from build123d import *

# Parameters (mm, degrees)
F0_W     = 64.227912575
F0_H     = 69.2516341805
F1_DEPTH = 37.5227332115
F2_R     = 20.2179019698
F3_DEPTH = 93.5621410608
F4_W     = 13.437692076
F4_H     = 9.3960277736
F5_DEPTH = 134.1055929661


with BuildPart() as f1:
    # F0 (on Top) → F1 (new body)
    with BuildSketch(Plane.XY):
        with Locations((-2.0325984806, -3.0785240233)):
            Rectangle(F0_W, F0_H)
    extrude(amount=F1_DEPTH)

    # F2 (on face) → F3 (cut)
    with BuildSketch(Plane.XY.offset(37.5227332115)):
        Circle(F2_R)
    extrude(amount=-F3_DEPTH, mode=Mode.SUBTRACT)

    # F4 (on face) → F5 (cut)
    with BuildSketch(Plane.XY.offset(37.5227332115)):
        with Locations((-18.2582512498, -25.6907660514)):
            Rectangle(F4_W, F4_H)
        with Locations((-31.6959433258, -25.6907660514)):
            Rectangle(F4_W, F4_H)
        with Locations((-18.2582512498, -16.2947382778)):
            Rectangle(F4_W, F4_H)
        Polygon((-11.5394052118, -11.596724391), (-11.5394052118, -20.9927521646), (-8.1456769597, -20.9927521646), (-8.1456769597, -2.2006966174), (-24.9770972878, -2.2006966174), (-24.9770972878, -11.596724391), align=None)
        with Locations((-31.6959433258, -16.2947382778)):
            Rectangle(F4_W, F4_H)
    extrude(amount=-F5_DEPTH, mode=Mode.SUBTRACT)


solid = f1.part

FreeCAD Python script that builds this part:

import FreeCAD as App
import Part
import Sketcher
from FreeCAD import Vector
Q = App.Units.Quantity


def add_polygon(sketch, points):
    """Adds a closed chain of lines whose ends are joined by coincident constraints."""
    first, n = sketch.GeometryCount, len(points)
    for a, b in zip(points, points[1:] + points[:1]):
        sketch.addGeometry(Part.LineSegment(App.Vector(*a, 0), App.Vector(*b, 0)), False)
    for i in range(n):
        sketch.addConstraint(Sketcher.Constraint("Coincident", first + i, 2, first + (i + 1) % n, 1))

doc = App.newDocument("Part")
body = doc.addObject("PartDesign::Body", "Body")

# Sketch on XY plane
sketch1 = body.newObject("Sketcher::SketchObject", "Sketch")
sketch1.AttachmentSupport = (doc.getObject("XY_Plane"), [""])
sketch1.MapMode = "FlatFace"
add_polygon(sketch1, [(-34.146555, 31.547293), (-34.146555, -37.704341), (30.081358, -37.704341), (30.081358, 31.547293)])  # lines 0-3
sketch1.addConstraint([
    Sketcher.Constraint("Vertical", 0),
    Sketcher.Constraint("Horizontal", 1),
    Sketcher.Constraint("Vertical", 2),
    Sketcher.Constraint("Horizontal", 3),
    Sketcher.Constraint("DistanceX", 1, 1, 1, 2, Q("64.227913 mm")),
    Sketcher.Constraint("DistanceY", 0, 2, 0, 1, Q("69.251634 mm")),
    Sketcher.Constraint("DistanceY", 0, 2, -1, 1, Q("37.704341 mm")),
    Sketcher.Constraint("DistanceX", 0, 2, -1, 1, Q("34.146555 mm")),
])
pad1 = body.newObject("PartDesign::Pad", "Pad")
pad1.Profile = sketch1
pad1.Length = 37.522733

# Sketch on XY plane
sketch2 = body.newObject("Sketcher::SketchObject", "Sketch001")
sketch2.AttachmentSupport = (doc.getObject("XY_Plane"), [""])
sketch2.MapMode = "FlatFace"
sketch2.AttachmentOffset = App.Placement(Vector(0, 0, 37.522733), App.Rotation())
sketch2.addGeometry(Part.Circle(Vector(0, 0, 0), Vector(0, 0, 1), 20.217902), False)
sketch2.addConstraint([
    Sketcher.Constraint("Coincident", 0, 3, -1, 1),
    Sketcher.Constraint("Diameter", 0, Q("40.435804 mm")),
])
pocket1 = body.newObject("PartDesign::Pocket", "Pocket")
pocket1.Profile = sketch2
pocket1.Length = 93.562141

# Sketch on XY plane
sketch3 = body.newObject("Sketcher::SketchObject", "Sketch002")
sketch3.AttachmentSupport = (doc.getObject("XY_Plane"), [""])
sketch3.MapMode = "FlatFace"
sketch3.AttachmentOffset = App.Placement(Vector(0, 0, 37.522733), App.Rotation())
add_polygon(sketch3, [(-11.539405, -30.38878), (-11.539405, -20.992752), (-8.145677, -20.992752), (-8.145677, -2.200697), (-24.977097, -2.200697), (-24.977097, -11.596724), (-38.414789, -11.596724), (-38.414789, -30.38878)])  # lines 0-7
sketch3.addConstraint([
    Sketcher.Constraint("Vertical", 0),
    Sketcher.Constraint("Horizontal", 1),
    Sketcher.Constraint("Vertical", 2),
    Sketcher.Constraint("Horizontal", 3),
    Sketcher.Constraint("Vertical", 4),
    Sketcher.Constraint("Horizontal", 5),
    Sketcher.Constraint("Vertical", 6),
    Sketcher.Constraint("Horizontal", 7),
    Sketcher.Constraint("Equal", 0, 4),
    Sketcher.Constraint("DistanceX", 1, 1, 1, 2, Q("3.393728 mm")),
    Sketcher.Constraint("DistanceX", 3, 2, 3, 1, Q("16.83142 mm")),
    Sketcher.Constraint("DistanceX", 5, 2, 5, 1, Q("13.437692 mm")),
    Sketcher.Constraint("DistanceY", 0, 1, 0, 2, Q("9.396028 mm")),
    Sketcher.Constraint("DistanceY", 2, 1, 2, 2, Q("18.792056 mm")),
    Sketcher.Constraint("DistanceX", 5, 2, -1, 1, Q("38.414789 mm")),
    Sketcher.Constraint("DistanceY", 6, 2, -1, 1, Q("30.38878 mm")),
])
pocket2 = body.newObject("PartDesign::Pocket", "Pocket001")
pocket2.Profile = sketch3
pocket2.Length = 134.105593

doc.recompute()
